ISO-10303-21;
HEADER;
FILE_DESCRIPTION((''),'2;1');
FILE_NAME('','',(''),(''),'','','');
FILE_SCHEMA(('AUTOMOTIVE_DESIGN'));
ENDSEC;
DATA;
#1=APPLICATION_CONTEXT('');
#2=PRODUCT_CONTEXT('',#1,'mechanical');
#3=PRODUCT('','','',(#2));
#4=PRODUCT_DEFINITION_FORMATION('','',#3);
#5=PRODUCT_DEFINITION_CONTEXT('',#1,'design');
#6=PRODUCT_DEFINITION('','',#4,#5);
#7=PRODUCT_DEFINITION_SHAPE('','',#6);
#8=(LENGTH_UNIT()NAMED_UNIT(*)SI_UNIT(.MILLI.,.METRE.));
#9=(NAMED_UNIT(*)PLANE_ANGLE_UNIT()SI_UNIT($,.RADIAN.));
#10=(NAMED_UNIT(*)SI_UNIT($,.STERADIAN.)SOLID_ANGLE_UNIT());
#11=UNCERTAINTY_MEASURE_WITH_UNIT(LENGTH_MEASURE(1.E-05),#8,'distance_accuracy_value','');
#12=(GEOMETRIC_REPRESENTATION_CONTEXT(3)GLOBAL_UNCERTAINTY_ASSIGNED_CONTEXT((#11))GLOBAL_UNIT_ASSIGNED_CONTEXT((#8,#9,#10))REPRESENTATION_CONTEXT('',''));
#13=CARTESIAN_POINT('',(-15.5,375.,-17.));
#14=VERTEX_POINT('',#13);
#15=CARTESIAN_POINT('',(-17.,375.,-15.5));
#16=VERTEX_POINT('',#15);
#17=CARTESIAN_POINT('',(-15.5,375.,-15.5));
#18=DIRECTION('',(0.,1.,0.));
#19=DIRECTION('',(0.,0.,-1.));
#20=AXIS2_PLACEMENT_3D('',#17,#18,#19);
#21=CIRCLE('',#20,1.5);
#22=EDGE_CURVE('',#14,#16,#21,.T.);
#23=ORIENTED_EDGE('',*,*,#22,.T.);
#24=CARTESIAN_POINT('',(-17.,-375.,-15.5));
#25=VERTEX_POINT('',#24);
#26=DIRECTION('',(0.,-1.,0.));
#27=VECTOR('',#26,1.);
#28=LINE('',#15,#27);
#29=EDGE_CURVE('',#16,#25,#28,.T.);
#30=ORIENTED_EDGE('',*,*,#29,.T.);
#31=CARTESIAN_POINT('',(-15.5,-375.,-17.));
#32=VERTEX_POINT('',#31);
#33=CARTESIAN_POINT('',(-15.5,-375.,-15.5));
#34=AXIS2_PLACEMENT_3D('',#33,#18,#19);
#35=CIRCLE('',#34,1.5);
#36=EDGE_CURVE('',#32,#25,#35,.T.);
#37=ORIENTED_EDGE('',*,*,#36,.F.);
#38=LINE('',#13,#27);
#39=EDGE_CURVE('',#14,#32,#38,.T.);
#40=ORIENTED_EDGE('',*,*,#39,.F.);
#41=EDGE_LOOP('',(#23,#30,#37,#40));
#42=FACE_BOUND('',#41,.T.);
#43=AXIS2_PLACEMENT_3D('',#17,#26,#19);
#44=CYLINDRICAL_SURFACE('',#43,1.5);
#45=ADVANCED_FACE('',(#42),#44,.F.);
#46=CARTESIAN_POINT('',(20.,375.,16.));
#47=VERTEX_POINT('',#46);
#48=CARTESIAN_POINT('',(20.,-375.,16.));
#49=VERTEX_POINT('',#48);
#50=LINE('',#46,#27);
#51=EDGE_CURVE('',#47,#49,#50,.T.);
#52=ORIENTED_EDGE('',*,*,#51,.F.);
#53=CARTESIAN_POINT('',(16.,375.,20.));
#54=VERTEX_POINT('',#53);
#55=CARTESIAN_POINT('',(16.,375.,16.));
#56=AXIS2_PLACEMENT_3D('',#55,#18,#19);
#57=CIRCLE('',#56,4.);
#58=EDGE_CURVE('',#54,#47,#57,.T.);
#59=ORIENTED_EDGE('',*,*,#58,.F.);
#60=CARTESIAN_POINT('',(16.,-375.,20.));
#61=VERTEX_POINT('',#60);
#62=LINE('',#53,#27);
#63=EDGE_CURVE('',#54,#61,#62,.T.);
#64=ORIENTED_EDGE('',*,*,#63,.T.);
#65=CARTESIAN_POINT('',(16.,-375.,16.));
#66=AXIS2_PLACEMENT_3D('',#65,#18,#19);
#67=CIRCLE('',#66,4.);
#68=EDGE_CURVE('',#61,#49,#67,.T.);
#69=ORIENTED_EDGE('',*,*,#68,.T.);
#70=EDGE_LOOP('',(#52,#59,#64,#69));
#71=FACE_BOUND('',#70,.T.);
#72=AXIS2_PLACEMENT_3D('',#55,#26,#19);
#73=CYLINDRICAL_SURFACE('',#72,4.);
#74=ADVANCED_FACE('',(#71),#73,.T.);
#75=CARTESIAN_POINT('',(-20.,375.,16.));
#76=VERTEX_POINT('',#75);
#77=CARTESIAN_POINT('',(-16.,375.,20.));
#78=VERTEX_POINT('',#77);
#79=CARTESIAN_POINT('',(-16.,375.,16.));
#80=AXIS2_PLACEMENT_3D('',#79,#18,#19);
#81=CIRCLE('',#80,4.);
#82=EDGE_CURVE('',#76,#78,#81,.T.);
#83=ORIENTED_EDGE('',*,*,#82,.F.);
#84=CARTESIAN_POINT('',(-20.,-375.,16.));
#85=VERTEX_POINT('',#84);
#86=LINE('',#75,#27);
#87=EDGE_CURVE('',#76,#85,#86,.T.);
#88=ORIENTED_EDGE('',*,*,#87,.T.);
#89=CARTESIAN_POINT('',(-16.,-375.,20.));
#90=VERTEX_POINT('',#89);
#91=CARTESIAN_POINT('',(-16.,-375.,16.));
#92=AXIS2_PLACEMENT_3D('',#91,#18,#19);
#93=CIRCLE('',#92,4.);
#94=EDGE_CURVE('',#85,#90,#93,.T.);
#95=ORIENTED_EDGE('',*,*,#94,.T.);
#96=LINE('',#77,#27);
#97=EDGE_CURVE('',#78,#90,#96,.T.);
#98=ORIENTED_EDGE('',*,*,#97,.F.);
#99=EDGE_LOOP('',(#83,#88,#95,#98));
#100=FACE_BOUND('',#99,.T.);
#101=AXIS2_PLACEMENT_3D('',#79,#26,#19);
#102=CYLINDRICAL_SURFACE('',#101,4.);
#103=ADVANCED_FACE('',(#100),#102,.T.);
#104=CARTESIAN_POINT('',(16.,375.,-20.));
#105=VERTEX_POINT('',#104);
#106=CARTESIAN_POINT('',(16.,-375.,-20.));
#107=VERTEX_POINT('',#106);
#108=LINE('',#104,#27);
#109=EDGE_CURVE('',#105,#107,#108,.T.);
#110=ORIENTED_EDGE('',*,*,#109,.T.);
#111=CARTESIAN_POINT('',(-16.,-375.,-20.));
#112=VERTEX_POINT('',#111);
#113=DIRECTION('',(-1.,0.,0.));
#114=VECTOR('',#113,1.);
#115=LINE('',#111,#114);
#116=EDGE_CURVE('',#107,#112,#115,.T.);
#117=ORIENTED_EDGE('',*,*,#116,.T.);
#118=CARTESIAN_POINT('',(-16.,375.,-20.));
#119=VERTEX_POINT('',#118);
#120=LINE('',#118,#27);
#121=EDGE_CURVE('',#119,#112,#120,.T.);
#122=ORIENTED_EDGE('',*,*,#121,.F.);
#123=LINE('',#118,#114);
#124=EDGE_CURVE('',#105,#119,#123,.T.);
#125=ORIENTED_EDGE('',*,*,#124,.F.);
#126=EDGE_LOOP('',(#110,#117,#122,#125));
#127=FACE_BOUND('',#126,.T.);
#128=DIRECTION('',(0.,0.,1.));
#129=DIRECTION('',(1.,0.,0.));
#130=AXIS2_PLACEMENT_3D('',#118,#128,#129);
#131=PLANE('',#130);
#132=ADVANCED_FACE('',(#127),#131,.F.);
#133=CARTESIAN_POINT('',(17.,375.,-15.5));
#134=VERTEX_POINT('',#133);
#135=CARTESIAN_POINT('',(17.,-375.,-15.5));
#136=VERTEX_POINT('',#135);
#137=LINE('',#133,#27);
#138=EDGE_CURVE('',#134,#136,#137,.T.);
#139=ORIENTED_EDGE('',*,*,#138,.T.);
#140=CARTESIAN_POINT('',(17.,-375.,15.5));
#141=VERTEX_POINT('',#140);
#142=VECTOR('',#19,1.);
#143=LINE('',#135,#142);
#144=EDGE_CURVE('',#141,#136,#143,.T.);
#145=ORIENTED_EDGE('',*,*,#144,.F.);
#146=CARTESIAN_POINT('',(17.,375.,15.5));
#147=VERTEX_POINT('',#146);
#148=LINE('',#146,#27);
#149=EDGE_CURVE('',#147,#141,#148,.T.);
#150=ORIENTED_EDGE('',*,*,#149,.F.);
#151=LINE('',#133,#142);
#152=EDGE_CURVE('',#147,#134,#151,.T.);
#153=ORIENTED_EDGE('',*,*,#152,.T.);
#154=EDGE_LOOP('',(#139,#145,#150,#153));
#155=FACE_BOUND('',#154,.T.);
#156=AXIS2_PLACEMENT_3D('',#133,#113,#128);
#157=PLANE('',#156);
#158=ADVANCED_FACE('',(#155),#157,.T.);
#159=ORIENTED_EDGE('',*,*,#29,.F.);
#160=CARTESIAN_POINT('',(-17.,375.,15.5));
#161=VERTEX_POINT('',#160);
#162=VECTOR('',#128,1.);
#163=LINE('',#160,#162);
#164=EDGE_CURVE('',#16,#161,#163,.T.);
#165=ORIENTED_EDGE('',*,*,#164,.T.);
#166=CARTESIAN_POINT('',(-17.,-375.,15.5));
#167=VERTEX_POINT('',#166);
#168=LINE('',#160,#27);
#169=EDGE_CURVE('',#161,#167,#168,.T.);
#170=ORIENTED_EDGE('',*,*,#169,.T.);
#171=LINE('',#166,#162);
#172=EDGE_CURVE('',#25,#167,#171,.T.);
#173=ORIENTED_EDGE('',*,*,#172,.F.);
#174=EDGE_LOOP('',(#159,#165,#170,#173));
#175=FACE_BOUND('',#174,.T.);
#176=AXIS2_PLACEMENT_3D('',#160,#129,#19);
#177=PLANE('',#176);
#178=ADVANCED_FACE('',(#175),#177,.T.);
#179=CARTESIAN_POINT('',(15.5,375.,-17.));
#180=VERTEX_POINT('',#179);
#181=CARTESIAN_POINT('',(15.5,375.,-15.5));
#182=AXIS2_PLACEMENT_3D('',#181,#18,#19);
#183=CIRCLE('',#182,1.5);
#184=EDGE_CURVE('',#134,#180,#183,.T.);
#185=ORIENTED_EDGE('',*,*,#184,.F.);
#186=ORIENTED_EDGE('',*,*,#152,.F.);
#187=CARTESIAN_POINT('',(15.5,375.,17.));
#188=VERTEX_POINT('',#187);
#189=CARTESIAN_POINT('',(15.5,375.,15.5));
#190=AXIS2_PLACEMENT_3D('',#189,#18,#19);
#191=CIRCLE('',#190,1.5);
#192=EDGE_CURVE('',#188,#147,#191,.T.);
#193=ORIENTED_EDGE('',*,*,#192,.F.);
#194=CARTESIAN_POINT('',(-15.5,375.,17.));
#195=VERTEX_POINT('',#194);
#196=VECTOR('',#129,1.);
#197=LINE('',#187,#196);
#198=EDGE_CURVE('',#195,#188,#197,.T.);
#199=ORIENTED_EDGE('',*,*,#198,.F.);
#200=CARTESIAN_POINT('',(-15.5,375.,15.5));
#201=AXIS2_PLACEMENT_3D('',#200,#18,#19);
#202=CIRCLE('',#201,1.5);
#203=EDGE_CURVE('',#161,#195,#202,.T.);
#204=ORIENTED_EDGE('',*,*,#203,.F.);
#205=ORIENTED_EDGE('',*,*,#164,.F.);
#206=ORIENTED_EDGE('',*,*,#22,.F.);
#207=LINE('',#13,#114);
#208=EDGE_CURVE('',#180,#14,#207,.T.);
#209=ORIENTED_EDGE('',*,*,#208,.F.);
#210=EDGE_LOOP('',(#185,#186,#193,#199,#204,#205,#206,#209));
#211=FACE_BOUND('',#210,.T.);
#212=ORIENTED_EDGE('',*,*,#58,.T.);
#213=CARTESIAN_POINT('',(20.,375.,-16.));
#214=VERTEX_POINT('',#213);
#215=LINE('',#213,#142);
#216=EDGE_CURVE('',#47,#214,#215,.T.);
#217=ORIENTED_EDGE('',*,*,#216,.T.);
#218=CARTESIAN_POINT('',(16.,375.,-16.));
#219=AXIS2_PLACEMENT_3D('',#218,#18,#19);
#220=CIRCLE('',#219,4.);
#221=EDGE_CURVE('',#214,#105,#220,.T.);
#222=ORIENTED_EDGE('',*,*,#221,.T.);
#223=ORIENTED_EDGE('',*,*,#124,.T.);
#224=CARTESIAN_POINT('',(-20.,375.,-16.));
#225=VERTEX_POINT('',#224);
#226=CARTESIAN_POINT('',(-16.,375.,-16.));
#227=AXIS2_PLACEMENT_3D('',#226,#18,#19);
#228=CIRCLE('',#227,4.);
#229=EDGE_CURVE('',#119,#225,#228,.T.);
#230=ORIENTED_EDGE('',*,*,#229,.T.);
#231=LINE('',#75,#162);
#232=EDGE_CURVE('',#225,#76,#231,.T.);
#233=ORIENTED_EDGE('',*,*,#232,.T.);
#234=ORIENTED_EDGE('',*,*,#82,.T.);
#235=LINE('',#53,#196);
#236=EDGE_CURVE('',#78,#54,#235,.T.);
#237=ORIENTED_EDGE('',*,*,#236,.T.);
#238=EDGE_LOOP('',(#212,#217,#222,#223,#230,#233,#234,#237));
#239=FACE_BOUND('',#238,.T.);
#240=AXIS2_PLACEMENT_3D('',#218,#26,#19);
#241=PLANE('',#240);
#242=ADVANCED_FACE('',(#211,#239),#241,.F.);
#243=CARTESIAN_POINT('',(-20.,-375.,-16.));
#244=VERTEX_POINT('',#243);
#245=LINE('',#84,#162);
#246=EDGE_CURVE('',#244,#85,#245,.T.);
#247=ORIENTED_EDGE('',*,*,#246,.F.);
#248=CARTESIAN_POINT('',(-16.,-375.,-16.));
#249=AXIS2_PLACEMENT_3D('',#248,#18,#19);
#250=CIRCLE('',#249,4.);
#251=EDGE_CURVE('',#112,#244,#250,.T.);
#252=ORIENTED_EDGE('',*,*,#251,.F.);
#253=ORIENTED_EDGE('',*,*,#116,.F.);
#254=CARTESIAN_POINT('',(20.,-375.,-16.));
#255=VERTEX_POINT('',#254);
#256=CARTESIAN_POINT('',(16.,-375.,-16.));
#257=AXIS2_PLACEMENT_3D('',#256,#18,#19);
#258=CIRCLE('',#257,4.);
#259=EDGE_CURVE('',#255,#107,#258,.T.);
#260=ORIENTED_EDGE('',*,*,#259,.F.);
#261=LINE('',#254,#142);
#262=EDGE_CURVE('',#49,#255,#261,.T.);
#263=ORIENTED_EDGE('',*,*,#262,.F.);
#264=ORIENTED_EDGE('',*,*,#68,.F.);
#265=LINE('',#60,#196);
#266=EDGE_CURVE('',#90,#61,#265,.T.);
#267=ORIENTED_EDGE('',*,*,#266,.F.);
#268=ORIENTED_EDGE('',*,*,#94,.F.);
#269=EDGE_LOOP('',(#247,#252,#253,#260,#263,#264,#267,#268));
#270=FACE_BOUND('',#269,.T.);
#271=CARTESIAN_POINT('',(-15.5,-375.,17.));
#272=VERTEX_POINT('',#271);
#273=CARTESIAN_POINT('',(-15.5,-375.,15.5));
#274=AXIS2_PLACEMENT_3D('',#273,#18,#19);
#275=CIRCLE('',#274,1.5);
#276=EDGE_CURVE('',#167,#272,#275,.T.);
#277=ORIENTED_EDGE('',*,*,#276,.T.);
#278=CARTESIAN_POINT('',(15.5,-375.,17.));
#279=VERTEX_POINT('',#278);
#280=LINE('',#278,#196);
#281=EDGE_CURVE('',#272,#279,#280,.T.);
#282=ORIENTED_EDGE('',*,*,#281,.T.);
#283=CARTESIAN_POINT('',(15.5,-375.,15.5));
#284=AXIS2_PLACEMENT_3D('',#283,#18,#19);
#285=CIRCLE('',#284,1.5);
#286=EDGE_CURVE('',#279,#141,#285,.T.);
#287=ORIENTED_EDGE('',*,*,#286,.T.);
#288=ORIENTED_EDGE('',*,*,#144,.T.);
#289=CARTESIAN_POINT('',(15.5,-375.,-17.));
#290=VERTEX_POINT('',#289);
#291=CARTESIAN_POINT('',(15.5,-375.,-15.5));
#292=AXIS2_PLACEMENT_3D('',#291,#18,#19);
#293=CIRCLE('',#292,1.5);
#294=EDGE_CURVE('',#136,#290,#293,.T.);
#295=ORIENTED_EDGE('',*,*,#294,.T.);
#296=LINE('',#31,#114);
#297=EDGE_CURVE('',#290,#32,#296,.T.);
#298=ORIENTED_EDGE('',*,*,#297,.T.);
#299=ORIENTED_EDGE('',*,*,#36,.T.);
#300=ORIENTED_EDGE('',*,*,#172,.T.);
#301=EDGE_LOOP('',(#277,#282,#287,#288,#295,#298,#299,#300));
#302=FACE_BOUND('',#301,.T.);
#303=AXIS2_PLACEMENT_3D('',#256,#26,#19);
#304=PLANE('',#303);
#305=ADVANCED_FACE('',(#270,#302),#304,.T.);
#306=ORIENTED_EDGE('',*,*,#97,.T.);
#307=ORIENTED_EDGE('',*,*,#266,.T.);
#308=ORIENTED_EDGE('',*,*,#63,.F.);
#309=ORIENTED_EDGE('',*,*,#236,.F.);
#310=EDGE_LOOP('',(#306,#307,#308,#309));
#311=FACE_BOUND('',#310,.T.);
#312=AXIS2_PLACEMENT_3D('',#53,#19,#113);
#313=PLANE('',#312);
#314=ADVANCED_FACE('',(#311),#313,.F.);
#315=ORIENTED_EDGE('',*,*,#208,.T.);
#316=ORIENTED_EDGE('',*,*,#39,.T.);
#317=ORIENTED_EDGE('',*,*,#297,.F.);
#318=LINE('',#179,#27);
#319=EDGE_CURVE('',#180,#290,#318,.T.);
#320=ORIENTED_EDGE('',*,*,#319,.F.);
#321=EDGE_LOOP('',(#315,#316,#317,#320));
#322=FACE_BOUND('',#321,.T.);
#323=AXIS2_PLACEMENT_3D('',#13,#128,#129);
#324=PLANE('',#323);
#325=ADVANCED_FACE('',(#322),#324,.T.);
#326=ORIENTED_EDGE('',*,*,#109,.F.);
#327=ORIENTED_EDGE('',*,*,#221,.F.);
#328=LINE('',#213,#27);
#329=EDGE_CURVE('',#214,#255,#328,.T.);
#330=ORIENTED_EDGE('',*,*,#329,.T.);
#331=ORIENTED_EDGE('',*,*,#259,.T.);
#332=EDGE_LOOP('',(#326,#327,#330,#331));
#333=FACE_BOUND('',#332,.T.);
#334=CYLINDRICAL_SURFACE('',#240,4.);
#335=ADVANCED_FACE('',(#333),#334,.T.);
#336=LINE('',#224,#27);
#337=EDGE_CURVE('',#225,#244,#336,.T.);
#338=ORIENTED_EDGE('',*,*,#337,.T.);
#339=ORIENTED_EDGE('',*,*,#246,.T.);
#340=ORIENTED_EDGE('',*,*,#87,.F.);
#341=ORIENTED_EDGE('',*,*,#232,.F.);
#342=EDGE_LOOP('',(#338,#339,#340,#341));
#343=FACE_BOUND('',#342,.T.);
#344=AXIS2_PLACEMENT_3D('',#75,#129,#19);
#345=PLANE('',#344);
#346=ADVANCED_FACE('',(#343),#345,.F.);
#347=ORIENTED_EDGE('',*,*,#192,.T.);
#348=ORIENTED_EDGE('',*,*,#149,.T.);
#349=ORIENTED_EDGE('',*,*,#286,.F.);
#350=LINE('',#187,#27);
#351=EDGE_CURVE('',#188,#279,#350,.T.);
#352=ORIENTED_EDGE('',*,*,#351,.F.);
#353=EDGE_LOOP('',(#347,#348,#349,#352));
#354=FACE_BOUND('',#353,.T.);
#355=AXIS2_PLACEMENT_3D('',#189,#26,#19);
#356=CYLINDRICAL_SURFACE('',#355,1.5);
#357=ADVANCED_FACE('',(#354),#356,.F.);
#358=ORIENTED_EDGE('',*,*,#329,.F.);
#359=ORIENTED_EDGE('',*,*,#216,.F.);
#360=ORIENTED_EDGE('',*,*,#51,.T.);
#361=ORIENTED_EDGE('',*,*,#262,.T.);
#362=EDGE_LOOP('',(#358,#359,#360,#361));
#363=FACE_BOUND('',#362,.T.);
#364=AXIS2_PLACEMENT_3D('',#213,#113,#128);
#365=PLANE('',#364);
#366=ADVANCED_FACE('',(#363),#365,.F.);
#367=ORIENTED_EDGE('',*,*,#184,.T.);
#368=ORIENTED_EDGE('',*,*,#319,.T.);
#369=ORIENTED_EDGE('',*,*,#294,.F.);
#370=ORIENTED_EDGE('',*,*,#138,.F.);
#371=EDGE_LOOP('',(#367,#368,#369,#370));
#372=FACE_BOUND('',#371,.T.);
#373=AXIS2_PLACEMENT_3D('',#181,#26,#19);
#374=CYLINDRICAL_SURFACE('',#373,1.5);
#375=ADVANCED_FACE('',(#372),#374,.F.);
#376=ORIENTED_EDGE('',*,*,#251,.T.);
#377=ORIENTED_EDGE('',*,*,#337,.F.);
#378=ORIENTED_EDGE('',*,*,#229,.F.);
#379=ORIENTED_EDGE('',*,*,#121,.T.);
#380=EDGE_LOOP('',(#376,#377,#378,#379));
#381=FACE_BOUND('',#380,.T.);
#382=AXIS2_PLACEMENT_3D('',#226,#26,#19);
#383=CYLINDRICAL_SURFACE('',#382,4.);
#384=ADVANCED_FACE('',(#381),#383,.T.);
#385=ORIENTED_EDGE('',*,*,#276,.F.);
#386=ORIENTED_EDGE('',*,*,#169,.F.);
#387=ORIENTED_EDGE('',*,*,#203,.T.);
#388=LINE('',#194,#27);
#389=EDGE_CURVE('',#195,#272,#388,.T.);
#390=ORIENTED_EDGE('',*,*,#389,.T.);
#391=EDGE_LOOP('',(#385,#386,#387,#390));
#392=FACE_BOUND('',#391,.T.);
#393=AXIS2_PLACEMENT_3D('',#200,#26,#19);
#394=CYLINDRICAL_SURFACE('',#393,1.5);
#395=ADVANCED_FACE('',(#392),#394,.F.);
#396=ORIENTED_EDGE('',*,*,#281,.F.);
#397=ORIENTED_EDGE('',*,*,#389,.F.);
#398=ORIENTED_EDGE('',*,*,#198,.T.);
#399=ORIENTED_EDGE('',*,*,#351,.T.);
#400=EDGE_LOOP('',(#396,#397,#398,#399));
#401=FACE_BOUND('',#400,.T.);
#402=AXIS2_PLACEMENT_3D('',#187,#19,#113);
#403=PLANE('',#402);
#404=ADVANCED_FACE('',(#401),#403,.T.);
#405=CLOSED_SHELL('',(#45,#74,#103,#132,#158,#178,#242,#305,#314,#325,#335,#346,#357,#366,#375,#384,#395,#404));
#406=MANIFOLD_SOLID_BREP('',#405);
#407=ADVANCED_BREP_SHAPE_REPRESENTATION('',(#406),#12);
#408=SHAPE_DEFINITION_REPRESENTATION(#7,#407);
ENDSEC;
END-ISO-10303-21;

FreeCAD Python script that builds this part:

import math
import FreeCAD as App
import Part
import Sketcher

doc = App.newDocument("Part")
body = doc.addObject("PartDesign::Body", "Body")

sketch1 = doc.addObject("Sketcher::SketchObject", "Sketch")
body.addObject(sketch1)
sketch1.AttachmentSupport = (doc.XZ_Plane, [""])
sketch1.MapMode = "FlatFace"
sketch1.AttachmentOffset = App.Placement(App.Vector(0, 0, 375), App.Rotation())
sketch1.addGeometry([
    Part.LineSegment(App.Vector(20, 16, 0), App.Vector(20, -16, 0)),
    Part.ArcOfCircle(Part.Circle(App.Vector(16, -16, 0), App.Vector(0, 0, 1), 4), math.radians(-90), math.radians(0)),
    Part.LineSegment(App.Vector(16, -20, 0), App.Vector(-16, -20, 0)),
    Part.ArcOfCircle(Part.Circle(App.Vector(-16, -16, 0), App.Vector(0, 0, 1), 4), math.radians(180), math.radians(270)),
    Part.LineSegment(App.Vector(-20, -16, 0), App.Vector(-20, 16, 0)),
    Part.ArcOfCircle(Part.Circle(App.Vector(-16, 16, 0), App.Vector(0, 0, 1), 4), math.radians(90), math.radians(180)),
    Part.LineSegment(App.Vector(-16, 20, 0), App.Vector(16, 20, 0)),
    Part.ArcOfCircle(Part.Circle(App.Vector(16, 16, 0), App.Vector(0, 0, 1), 4), math.radians(0), math.radians(90)),
    Part.LineSegment(App.Vector(17, -15.5, 0), App.Vector(17, 15.5, 0)),
    Part.ArcOfCircle(Part.Circle(App.Vector(15.5, 15.5, 0), App.Vector(0, 0, 1), 1.5), math.radians(0), math.radians(90)),
    Part.LineSegment(App.Vector(15.5, 17, 0), App.Vector(-15.5, 17, 0)),
    Part.ArcOfCircle(Part.Circle(App.Vector(-15.5, 15.5, 0), App.Vector(0, 0, 1), 1.5), math.radians(90), math.radians(180)),
    Part.LineSegment(App.Vector(-17, 15.5, 0), App.Vector(-17, -15.5, 0)),
    Part.ArcOfCircle(Part.Circle(App.Vector(-15.5, -15.5, 0), App.Vector(0, 0, 1), 1.5), math.radians(180), math.radians(270)),
    Part.LineSegment(App.Vector(-15.5, -17, 0), App.Vector(15.5, -17, 0)),
    Part.ArcOfCircle(Part.Circle(App.Vector(15.5, -15.5, 0), App.Vector(0, 0, 1), 1.5), math.radians(-90), math.radians(0)),
], False)
sketch1.addConstraint([
    Sketcher.Constraint("Tangent", 0, 2, 1, 2),
    Sketcher.Constraint("Tangent", 1, 1, 2, 1),
    Sketcher.Constraint("Tangent", 2, 2, 3, 2),
    Sketcher.Constraint("Tangent", 3, 1, 4, 1),
    Sketcher.Constraint("Tangent", 4, 2, 5, 2),
    Sketcher.Constraint("Tangent", 5, 1, 6, 1),
    Sketcher.Constraint("Tangent", 6, 2, 7, 2),
    Sketcher.Constraint("Tangent", 7, 1, 0, 1),
    Sketcher.Constraint("Tangent", 8, 2, 9, 1),
    Sketcher.Constraint("Tangent", 9, 2, 10, 1),
    Sketcher.Constraint("Tangent", 10, 2, 11, 1),
    Sketcher.Constraint("Tangent", 11, 2, 12, 1),
    Sketcher.Constraint("Tangent", 12, 2, 13, 1),
    Sketcher.Constraint("Tangent", 13, 2, 14, 1),
    Sketcher.Constraint("Tangent", 14, 2, 15, 1),
    Sketcher.Constraint("Tangent", 15, 2, 8, 1),
    Sketcher.Constraint("Vertical", 0),
    Sketcher.Constraint("Horizontal", 2),
    Sketcher.Constraint("Vertical", 4),
    Sketcher.Constraint("Horizontal", 6),
    Sketcher.Constraint("Vertical", 8),
    Sketcher.Constraint("Horizontal", 10),
    Sketcher.Constraint("Vertical", 12),
    Sketcher.Constraint("Horizontal", 14),
    Sketcher.Constraint("Equal", 1, 3),
    Sketcher.Constraint("Equal", 3, 5),
    Sketcher.Constraint("Equal", 5, 7),
    Sketcher.Constraint("Equal", 9, 11),
    Sketcher.Constraint("Equal", 11, 13),
    Sketcher.Constraint("Equal", 13, 15),
    Sketcher.Constraint("Symmetric", 1, 3, 5, 3, -1, 1),
    Sketcher.Constraint("Symmetric", 9, 3, 13, 3, -1, 1),
    Sketcher.Constraint("Equal", 6, 0),
    Sketcher.Constraint("Equal", 14, 8),
    Sketcher.Constraint("Radius", 1, 4.0),
    Sketcher.Constraint("Radius", 9, 1.5),
    Sketcher.Constraint("DistanceX", 2, 2, 2, 1, 32.0),
    Sketcher.Constraint("DistanceX", 10, 2, 10, 1, 31.0),
])
pad1 = doc.addObject("PartDesign::Pad", "Pad")
body.addObject(pad1)
pad1.Profile = sketch1
pad1.Length = 750
pad1.Reversed = True

doc.recompute()
